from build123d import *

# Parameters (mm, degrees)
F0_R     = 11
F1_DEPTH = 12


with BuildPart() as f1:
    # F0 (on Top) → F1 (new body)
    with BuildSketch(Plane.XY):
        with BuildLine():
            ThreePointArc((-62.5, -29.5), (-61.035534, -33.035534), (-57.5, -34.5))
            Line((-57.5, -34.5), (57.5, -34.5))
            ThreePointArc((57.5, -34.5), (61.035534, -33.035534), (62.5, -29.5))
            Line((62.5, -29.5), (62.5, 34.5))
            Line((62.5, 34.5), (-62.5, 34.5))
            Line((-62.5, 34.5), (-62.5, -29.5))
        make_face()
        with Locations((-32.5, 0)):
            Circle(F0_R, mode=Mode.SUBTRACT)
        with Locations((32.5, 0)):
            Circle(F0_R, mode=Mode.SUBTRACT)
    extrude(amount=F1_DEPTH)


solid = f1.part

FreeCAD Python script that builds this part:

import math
import FreeCAD as App
import Part
import Sketcher
from FreeCAD import Vector

doc = App.newDocument("Part")
body = doc.addObject("PartDesign::Body", "Body")

# Sketch on XY plane
sketch1 = body.newObject("Sketcher::SketchObject", "Sketch")
sketch1.AttachmentSupport = (doc.getObject("XY_Plane"), [""])
sketch1.MapMode = "FlatFace"
sketch1.addGeometry([
    Part.ArcOfCircle(Part.Circle(Vector(-57.5, -29.5, 0), Vector(0, 0, 1), 5), math.radians(180), math.radians(270)),  # 0
    Part.LineSegment(Vector(-57.5, -34.5, 0), Vector(57.5, -34.5, 0)),  # 1
    Part.ArcOfCircle(Part.Circle(Vector(57.5, -29.5, 0), Vector(0, 0, 1), 5), math.radians(-90), math.radians(0)),  # 2
    Part.LineSegment(Vector(62.5, -29.5, 0), Vector(62.5, 34.5, 0)),  # 3
    Part.LineSegment(Vector(62.5, 34.5, 0), Vector(-62.5, 34.5, 0)),  # 4
    Part.LineSegment(Vector(-62.5, 34.5, 0), Vector(-62.5, -29.5, 0)),  # 5
    Part.Circle(Vector(-32.5, 0, 0), Vector(0, 0, 1), 11),  # 6
    Part.Circle(Vector(32.5, 0, 0), Vector(0, 0, 1), 11),  # 7
], False)
sketch1.addConstraint([
    Sketcher.Constraint("Tangent", 0, 2, 1, 1),
    Sketcher.Constraint("Tangent", 1, 2, 2, 1),
    Sketcher.Constraint("Tangent", 2, 2, 3, 1),
    Sketcher.Constraint("Coincident", 3, 2, 4, 1),
    Sketcher.Constraint("Coincident", 4, 2, 5, 1),
    Sketcher.Constraint("Tangent", 5, 2, 0, 1),
    Sketcher.Constraint("Horizontal", 1),
    Sketcher.Constraint("Vertical", 3),
    Sketcher.Constraint("Horizontal", 4),
    Sketcher.Constraint("Vertical", 5),
    Sketcher.Constraint("Equal", 0, 2),
    Sketcher.Constraint("Equal", 6, 7),
    Sketcher.Constraint("Symmetric", 6, 3, 7, 3, -1, 1),
    Sketcher.Constraint("PointOnObject", 6, 3, -1),
    Sketcher.Constraint("Diameter", 6, 22.0),
    Sketcher.Constraint("Radius", 0, 5.0),
    Sketcher.Constraint("DistanceX", 1, 1, 1, 2, 115.0),
    Sketcher.Constraint("DistanceY", 3, 1, 3, 2, 64.0),
    Sketcher.Constraint("DistanceX", 0, 3, 6, 3, 25.0),
    Sketcher.Constraint("DistanceX", 7, 3, 2, 3, 25.0),
    Sketcher.Constraint("DistanceY", 0, 3, -1, 1, 29.5),
])
pad1 = body.newObject("PartDesign::Pad", "Pad")
pad1.Profile = sketch1
pad1.Length = 12

doc.recompute()
